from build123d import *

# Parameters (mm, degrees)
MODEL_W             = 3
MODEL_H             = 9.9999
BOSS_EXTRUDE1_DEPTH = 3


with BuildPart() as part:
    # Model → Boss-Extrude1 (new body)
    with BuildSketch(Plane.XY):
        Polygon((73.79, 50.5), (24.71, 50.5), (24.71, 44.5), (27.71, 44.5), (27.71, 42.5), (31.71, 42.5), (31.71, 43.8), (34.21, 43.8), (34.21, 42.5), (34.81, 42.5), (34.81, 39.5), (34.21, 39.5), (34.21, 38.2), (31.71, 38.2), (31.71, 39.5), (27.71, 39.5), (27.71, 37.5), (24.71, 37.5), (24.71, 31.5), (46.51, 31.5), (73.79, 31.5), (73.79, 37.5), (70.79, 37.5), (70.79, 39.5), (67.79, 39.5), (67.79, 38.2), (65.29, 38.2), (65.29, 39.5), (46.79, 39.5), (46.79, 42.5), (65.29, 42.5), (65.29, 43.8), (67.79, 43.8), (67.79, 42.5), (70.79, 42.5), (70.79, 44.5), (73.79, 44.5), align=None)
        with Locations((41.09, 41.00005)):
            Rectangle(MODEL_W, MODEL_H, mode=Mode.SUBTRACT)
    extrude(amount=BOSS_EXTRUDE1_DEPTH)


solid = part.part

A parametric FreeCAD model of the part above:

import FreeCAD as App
import Part
import Sketcher
Q = App.Units.Quantity

doc = App.newDocument("Part")
body = doc.addObject("PartDesign::Body", "Body")

# Sketch on XY plane
sketch1 = body.newObject("Sketcher::SketchObject", "Sketch")
sketch1.AttachmentSupport = (doc.getObject("XY_Plane"), [""])
sketch1.MapMode = "FlatFace"
sketch1.addGeometry([
    Part.LineSegment(App.Vector(73.8, 50.5, 0), App.Vector(24.7, 50.5, 0)),  # 0
    Part.LineSegment(App.Vector(24.7, 50.5, 0), App.Vector(24.7, 44.5, 0)),  # 1
    Part.LineSegment(App.Vector(24.7, 44.5, 0), App.Vector(27.7, 44.5, 0)),  # 2
    Part.LineSegment(App.Vector(27.7, 44.5, 0), App.Vector(27.7, 42.5, 0)),  # 3
    Part.LineSegment(App.Vector(27.7, 42.5, 0), App.Vector(31.7, 42.5, 0)),  # 4
    Part.LineSegment(App.Vector(31.7, 42.5, 0), App.Vector(31.7, 43.8, 0)),  # 5
    Part.LineSegment(App.Vector(31.7, 43.8, 0), App.Vector(34.2, 43.8, 0)),  # 6
    Part.LineSegment(App.Vector(34.2, 43.8, 0), App.Vector(34.2, 42.5, 0)),  # 7
    Part.LineSegment(App.Vector(34.2, 42.5, 0), App.Vector(34.8, 42.5, 0)),  # 8
    Part.LineSegment(App.Vector(34.8, 42.5, 0), App.Vector(34.8, 39.5, 0)),  # 9
    Part.LineSegment(App.Vector(34.8, 39.5, 0), App.Vector(34.2, 39.5, 0)),  # 10
    Part.LineSegment(App.Vector(34.2, 39.5, 0), App.Vector(34.2, 38.2, 0)),  # 11
    Part.LineSegment(App.Vector(34.2, 38.2, 0), App.Vector(31.7, 38.2, 0)),  # 12
    Part.LineSegment(App.Vector(31.7, 38.2, 0), App.Vector(31.7, 39.5, 0)),  # 13
    Part.LineSegment(App.Vector(31.7, 39.5, 0), App.Vector(27.7, 39.5, 0)),  # 14
    Part.LineSegment(App.Vector(27.7, 39.5, 0), App.Vector(27.7, 37.5, 0)),  # 15
    Part.LineSegment(App.Vector(27.7, 37.5, 0), App.Vector(24.7, 37.5, 0)),  # 16
    Part.LineSegment(App.Vector(24.7, 37.5, 0), App.Vector(24.7, 31.5, 0)),  # 17
    Part.LineSegment(App.Vector(24.7, 31.5, 0), App.Vector(73.8, 31.5, 0)),  # 18
    Part.LineSegment(App.Vector(73.8, 31.5, 0), App.Vector(73.8, 37.5, 0)),  # 19
    Part.LineSegment(App.Vector(73.8, 37.5, 0), App.Vector(70.8, 37.5, 0)),  # 20
    Part.LineSegment(App.Vector(70.8, 37.5, 0), App.Vector(70.8, 39.5, 0)),  # 21
    Part.LineSegment(App.Vector(70.8, 39.5, 0), App.Vector(67.8, 39.5, 0)),  # 22
    Part.LineSegment(App.Vector(67.8, 39.5, 0), App.Vector(67.8, 38.2, 0)),  # 23
    Part.LineSegment(App.Vector(67.8, 38.2, 0), App.Vector(65.3, 38.2, 0)),  # 24
    Part.LineSegment(App.Vector(65.3, 38.2, 0), App.Vector(65.3, 39.5, 0)),  # 25
    Part.LineSegment(App.Vector(65.3, 39.5, 0), App.Vector(46.8, 39.5, 0)),  # 26
    Part.LineSegment(App.Vector(46.8, 39.5, 0), App.Vector(46.8, 42.5, 0)),  # 27
    Part.LineSegment(App.Vector(46.8, 42.5, 0), App.Vector(65.3, 42.5, 0)),  # 28
    Part.LineSegment(App.Vector(65.3, 42.5, 0), App.Vector(65.3, 43.8, 0)),  # 29
    Part.LineSegment(App.Vector(65.3, 43.8, 0), App.Vector(67.8, 43.8, 0)),  # 30
    Part.LineSegment(App.Vector(67.8, 43.8, 0), App.Vector(67.8, 42.5, 0)),  # 31
    Part.LineSegment(App.Vector(67.8, 42.5, 0), App.Vector(70.8, 42.5, 0)),  # 32
    Part.LineSegment(App.Vector(70.8, 42.5, 0), App.Vector(70.8, 44.5, 0)),  # 33
    Part.LineSegment(App.Vector(70.8, 44.5, 0), App.Vector(73.8, 44.5, 0)),  # 34
    Part.LineSegment(App.Vector(73.8, 44.5, 0), App.Vector(73.8, 50.5, 0)),  # 35
    Part.LineSegment(App.Vector(42.6, 36, 0), App.Vector(39.6, 36, 0)),  # 36
    Part.LineSegment(App.Vector(39.6, 36, 0), App.Vector(39.6, 46, 0)),  # 37
    Part.LineSegment(App.Vector(39.6, 46, 0), App.Vector(42.6, 46, 0)),  # 38
    Part.LineSegment(App.Vector(42.6, 46, 0), App.Vector(42.6, 36, 0)),  # 39
], False)
sketch1.addConstraint([
    Sketcher.Constraint("Coincident", 0, 2, 1, 1),
    Sketcher.Constraint("Coincident", 1, 2, 2, 1),
    Sketcher.Constraint("Coincident", 2, 2, 3, 1),
    Sketcher.Constraint("Coincident", 3, 2, 4, 1),
    Sketcher.Constraint("Coincident", 4, 2, 5, 1),
    Sketcher.Constraint("Coincident", 5, 2, 6, 1),
    Sketcher.Constraint("Coincident", 6, 2, 7, 1),
    Sketcher.Constraint("Coincident", 7, 2, 8, 1),
    Sketcher.Constraint("Coincident", 8, 2, 9, 1),
    Sketcher.Constraint("Coincident", 9, 2, 10, 1),
    Sketcher.Constraint("Coincident", 10, 2, 11, 1),
    Sketcher.Constraint("Coincident", 11, 2, 12, 1),
    Sketcher.Constraint("Coincident", 12, 2, 13, 1),
    Sketcher.Constraint("Coincident", 13, 2, 14, 1),
    Sketcher.Constraint("Coincident", 14, 2, 15, 1),
    Sketcher.Constraint("Coincident", 15, 2, 16, 1),
    Sketcher.Constraint("Coincident", 16, 2, 17, 1),
    Sketcher.Constraint("Coincident", 17, 2, 18, 1),
    Sketcher.Constraint("Coincident", 18, 2, 19, 1),
    Sketcher.Constraint("Coincident", 19, 2, 20, 1),
    Sketcher.Constraint("Coincident", 20, 2, 21, 1),
    Sketcher.Constraint("Coincident", 21, 2, 22, 1),
    Sketcher.Constraint("Coincident", 22, 2, 23, 1),
    Sketcher.Constraint("Coincident", 23, 2, 24, 1),
    Sketcher.Constraint("Coincident", 24, 2, 25, 1),
    Sketcher.Constraint("Coincident", 25, 2, 26, 1),
    Sketcher.Constraint("Coincident", 26, 2, 27, 1),
    Sketcher.Constraint("Coincident", 27, 2, 28, 1),
    Sketcher.Constraint("Coincident", 28, 2, 29, 1),
    Sketcher.Constraint("Coincident", 29, 2, 30, 1),
    Sketcher.Constraint("Coincident", 30, 2, 31, 1),
    Sketcher.Constraint("Coincident", 31, 2, 32, 1),
    Sketcher.Constraint("Coincident", 32, 2, 33, 1),
    Sketcher.Constraint("Coincident", 33, 2, 34, 1),
    Sketcher.Constraint("Coincident", 34, 2, 35, 1),
    Sketcher.Constraint("Coincident", 35, 2, 0, 1),
    Sketcher.Constraint("Coincident", 36, 2, 37, 1),
    Sketcher.Constraint("Coincident", 37, 2, 38, 1),
    Sketcher.Constraint("Coincident", 38, 2, 39, 1),
    Sketcher.Constraint("Coincident", 39, 2, 36, 1),
    Sketcher.Constraint("Horizontal", 0),
    Sketcher.Constraint("Vertical", 1),
    Sketcher.Constraint("Horizontal", 2),
    Sketcher.Constraint("Vertical", 3),
    Sketcher.Constraint("Horizontal", 4),
    Sketcher.Constraint("Vertical", 5),
    Sketcher.Constraint("Horizontal", 6),
    Sketcher.Constraint("Vertical", 7),
    Sketcher.Constraint("Horizontal", 8),
    Sketcher.Constraint("Vertical", 9),
    Sketcher.Constraint("Horizontal", 10),
    Sketcher.Constraint("Vertical", 11),
    Sketcher.Constraint("Horizontal", 12),
    Sketcher.Constraint("Vertical", 13),
    Sketcher.Constraint("Horizontal", 14),
    Sketcher.Constraint("Vertical", 15),
    Sketcher.Constraint("Horizontal", 16),
    Sketcher.Constraint("Vertical", 17),
    Sketcher.Constraint("Horizontal", 18),
    Sketcher.Constraint("Vertical", 19),
    Sketcher.Constraint("Horizontal", 20),
    Sketcher.Constraint("Vertical", 21),
    Sketcher.Constraint("Horizontal", 22),
    Sketcher.Constraint("Vertical", 23),
    Sketcher.Constraint("Horizontal", 24),
    Sketcher.Constraint("Vertical", 25),
    Sketcher.Constraint("Horizontal", 26),
    Sketcher.Constraint("Vertical", 27),
    Sketcher.Constraint("Horizontal", 28),
    Sketcher.Constraint("Vertical", 29),
    Sketcher.Constraint("Horizontal", 30),
    Sketcher.Constraint("Vertical", 31),
    Sketcher.Constraint("Horizontal", 32),
    Sketcher.Constraint("Vertical", 33),
    Sketcher.Constraint("Horizontal", 34),
    Sketcher.Constraint("Vertical", 35),
    Sketcher.Constraint("Horizontal", 36),
    Sketcher.Constraint("Vertical", 37),
    Sketcher.Constraint("Horizontal", 38),
    Sketcher.Constraint("Vertical", 39),
    Sketcher.Constraint("Horizontal", 4, 2, 7, 2),
    Sketcher.Constraint("Horizontal", 10, 2, 13, 2),
    Sketcher.Constraint("Horizontal", 16, 2, 19, 2),
    Sketcher.Constraint("Horizontal", 14, 2, 21, 2),
    Sketcher.Constraint("Horizontal", 12, 2, 23, 2),
    Sketcher.Constraint("Horizontal", 22, 2, 25, 2),
    Sketcher.Constraint("Horizontal", 8, 2, 27, 2),
    Sketcher.Constraint("Horizontal", 6, 2, 29, 2),
    Sketcher.Constraint("Horizontal", 28, 2, 31, 2),
    Sketcher.Constraint("Horizontal", 2, 2, 33, 2),
    Sketcher.Constraint("Vertical", 7, 2, 10, 2),
    Sketcher.Constraint("Vertical", 5, 2, 12, 2),
    Sketcher.Constraint("Vertical", 3, 2, 14, 2),
    Sketcher.Constraint("Vertical", 1, 2, 16, 2),
    Sketcher.Constraint("Vertical", 25, 2, 28, 2),
    Sketcher.Constraint("Vertical", 23, 2, 30, 2),
    Sketcher.Constraint("Vertical", 21, 2, 32, 2),
    Sketcher.Constraint("Vertical", 19, 2, 34, 2),
    Sketcher.Constraint("Equal", 16, 20),
    Sketcher.Constraint("Equal", 20, 22),
    Sketcher.Constraint("Equal", 12, 24),
    Sketcher.Constraint("Equal", 34, 36),
    Sketcher.Constraint("Equal", 38, 9),
    Sketcher.Constraint("Equal", 7, 11),
    Sketcher.Constraint("Equal", 3, 15),
    Sketcher.Constraint("Equal", 1, 17),
    Sketcher.Constraint("DistanceX", 2, 1, 2, 2, Q("3 mm")),
    Sketcher.Constraint("DistanceX", 4, 1, 4, 2, Q("4 mm")),
    Sketcher.Constraint("DistanceY", 1, 2, 1, 1, Q("6 mm")),
    Sketcher.Constraint("DistanceY", 3, 2, 3, 1, Q("2 mm")),
    Sketcher.Constraint("DistanceX", 6, 1, 6, 2, Q("2.5 mm")),
    Sketcher.Constraint("DistanceX", 8, 1, 8, 2, Q("0.6 mm")),
    Sketcher.Constraint("DistanceX", 26, 2, 26, 1, Q("18.5 mm")),
    Sketcher.Constraint("DistanceY", 5, 1, 5, 2, Q("1.3 mm")),
    Sketcher.Constraint("DistanceY", -1, 1, 37, 2, Q("46 mm")),
    Sketcher.Constraint("DistanceX", 0, 2, 0, 1, Q("49.08 mm")),
    Sketcher.Constraint("DistanceY", -1, 1, 0, 2, Q("50.5 mm")),
    Sketcher.Constraint("DistanceX", 36, 2, 26, 2, Q("7.2 mm")),
    Sketcher.Constraint("DistanceX", -1, 1, 0, 2, Q("24.71 mm")),
    Sketcher.Constraint("DistanceY", 37, 1, 37, 2, Q("9.9999 mm")),
])
pad1 = body.newObject("PartDesign::Pad", "Pad")
pad1.Profile = sketch1
pad1.Length = 3

doc.recompute()
